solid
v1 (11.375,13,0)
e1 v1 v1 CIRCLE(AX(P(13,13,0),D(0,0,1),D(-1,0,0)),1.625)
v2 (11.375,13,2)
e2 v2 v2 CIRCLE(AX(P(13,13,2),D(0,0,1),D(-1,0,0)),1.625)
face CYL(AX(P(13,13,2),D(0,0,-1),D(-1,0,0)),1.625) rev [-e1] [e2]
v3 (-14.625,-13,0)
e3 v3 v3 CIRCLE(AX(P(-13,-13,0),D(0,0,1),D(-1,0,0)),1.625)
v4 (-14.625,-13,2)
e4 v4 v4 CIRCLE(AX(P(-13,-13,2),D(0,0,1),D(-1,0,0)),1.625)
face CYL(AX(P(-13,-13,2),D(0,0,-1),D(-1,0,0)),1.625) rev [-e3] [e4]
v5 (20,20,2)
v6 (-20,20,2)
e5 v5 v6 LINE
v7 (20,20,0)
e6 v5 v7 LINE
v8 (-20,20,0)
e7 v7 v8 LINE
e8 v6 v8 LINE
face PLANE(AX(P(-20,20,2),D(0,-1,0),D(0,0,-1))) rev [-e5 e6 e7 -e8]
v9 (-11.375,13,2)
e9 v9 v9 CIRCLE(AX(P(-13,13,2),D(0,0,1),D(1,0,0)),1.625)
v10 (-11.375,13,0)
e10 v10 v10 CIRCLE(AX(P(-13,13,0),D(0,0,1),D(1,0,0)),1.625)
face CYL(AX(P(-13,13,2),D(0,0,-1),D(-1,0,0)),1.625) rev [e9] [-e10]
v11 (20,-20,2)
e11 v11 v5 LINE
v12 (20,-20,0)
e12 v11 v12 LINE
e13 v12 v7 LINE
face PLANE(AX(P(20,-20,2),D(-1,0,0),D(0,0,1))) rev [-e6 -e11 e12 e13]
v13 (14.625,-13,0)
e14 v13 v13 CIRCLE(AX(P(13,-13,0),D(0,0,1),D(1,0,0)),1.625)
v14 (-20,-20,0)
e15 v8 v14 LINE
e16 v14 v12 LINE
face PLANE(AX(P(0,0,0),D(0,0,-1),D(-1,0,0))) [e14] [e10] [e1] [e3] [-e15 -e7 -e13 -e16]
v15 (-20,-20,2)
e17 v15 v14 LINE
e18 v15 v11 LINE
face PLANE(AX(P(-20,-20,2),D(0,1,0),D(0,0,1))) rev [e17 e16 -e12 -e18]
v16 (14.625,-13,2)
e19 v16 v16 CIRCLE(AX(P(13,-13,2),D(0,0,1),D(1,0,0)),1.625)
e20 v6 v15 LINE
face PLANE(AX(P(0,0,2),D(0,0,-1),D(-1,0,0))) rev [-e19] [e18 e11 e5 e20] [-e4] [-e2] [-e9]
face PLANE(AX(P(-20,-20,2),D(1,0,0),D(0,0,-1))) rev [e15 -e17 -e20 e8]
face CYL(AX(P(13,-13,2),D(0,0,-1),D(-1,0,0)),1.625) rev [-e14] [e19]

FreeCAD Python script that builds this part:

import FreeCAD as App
import Part
import Sketcher
from FreeCAD import Vector


def add_polygon(sketch, points):
    """Adds a closed chain of lines whose ends are joined by coincident constraints."""
    first, n = sketch.GeometryCount, len(points)
    for a, b in zip(points, points[1:] + points[:1]):
        sketch.addGeometry(Part.LineSegment(App.Vector(*a, 0), App.Vector(*b, 0)), False)
    for i in range(n):
        sketch.addConstraint(Sketcher.Constraint("Coincident", first + i, 2, first + (i + 1) % n, 1))

doc = App.newDocument("Part")
body = doc.addObject("PartDesign::Body", "Body")

sketch1 = body.newObject("Sketcher::SketchObject", "Sketch")
sketch1.AttachmentSupport = (doc.getObject("XY_Plane"), [""])
sketch1.MapMode = "FlatFace"
add_polygon(sketch1, [(-20, 20), (-20, -20), (20, -20), (20, 20)])
sketch1.addGeometry(Part.Circle(Vector(-13, -13, 0), Vector(0, 0, 1), 1.625), False)
sketch1.addGeometry(Part.Circle(Vector(13, -13, 0), Vector(0, 0, 1), 1.625), False)
sketch1.addGeometry(Part.Circle(Vector(-13, 13, 0), Vector(0, 0, 1), 1.625), False)
sketch1.addGeometry(Part.Circle(Vector(13, 13, 0), Vector(0, 0, 1), 1.625), False)
sketch1.addConstraint([
    Sketcher.Constraint("Vertical", 0),
    Sketcher.Constraint("Horizontal", 1),
    Sketcher.Constraint("Vertical", 2),
    Sketcher.Constraint("Horizontal", 3),
    Sketcher.Constraint("Equal", 4, 5),
    Sketcher.Constraint("Equal", 5, 6),
    Sketcher.Constraint("Equal", 6, 7),
    Sketcher.Constraint("Symmetric", 5, 3, 6, 3, -1, 1),
    Sketcher.Constraint("Symmetric", 4, 3, 7, 3, -1, 1),
    Sketcher.Constraint("Symmetric", 0, 2, 2, 2, -1, 1),
    Sketcher.Constraint("Symmetric", 4, 3, 5, 3, -2),
    Sketcher.Constraint("Equal", 3, 0),
    Sketcher.Constraint("Diameter", 4, 3.25),
    Sketcher.Constraint("DistanceX", 1, 1, 1, 2, 40.0),
    Sketcher.Constraint("DistanceX", 4, 3, -1, 1, 13.0),
    Sketcher.Constraint("DistanceY", 4, 3, -1, 1, 13.0),
])
pad1 = body.newObject("PartDesign::Pad", "Pad")
pad1.Profile = sketch1
pad1.Length = 2

doc.recompute()
